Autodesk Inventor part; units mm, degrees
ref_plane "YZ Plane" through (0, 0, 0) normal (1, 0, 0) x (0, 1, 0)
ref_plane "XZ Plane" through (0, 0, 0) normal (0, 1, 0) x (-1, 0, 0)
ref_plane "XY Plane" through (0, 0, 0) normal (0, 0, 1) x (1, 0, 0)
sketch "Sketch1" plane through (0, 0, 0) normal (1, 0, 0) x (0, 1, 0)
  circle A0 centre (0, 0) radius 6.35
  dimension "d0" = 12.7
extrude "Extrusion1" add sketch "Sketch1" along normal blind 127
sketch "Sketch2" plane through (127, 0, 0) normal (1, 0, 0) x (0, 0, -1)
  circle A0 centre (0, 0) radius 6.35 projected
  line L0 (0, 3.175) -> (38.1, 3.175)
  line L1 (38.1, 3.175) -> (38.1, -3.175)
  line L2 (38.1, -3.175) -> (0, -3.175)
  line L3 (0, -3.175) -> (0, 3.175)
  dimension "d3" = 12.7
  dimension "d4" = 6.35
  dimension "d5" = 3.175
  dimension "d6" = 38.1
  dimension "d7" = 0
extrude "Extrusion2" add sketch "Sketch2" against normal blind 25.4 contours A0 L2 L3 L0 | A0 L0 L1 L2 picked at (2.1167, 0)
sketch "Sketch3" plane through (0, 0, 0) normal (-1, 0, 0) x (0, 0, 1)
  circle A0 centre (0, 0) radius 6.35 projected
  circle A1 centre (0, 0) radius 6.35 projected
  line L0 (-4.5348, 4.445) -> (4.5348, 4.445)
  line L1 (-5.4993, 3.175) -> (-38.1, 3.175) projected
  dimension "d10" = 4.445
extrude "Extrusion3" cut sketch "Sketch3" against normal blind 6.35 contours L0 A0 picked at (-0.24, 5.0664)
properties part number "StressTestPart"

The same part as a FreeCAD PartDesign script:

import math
import FreeCAD as App
import Part
import Sketcher

V = App.Vector
Q = App.Units.Quantity

doc = App.newDocument("Part")
body = doc.addObject("PartDesign::Body", "Body")

# Sketch on YZ plane
sketch1 = body.newObject("Sketcher::SketchObject", "Sketch")
sketch1.AttachmentSupport = (doc.getObject("YZ_Plane"), [""])
sketch1.MapMode = "FlatFace"
sketch1.addGeometry(Part.Circle(V(0, 0, 0), V(0, 0, 1), 6), False)
sketch1.addConstraint(Sketcher.Constraint("Coincident", 0, 3, -1, 1))
sketch1.addConstraint(Sketcher.Constraint("Diameter", 0, Q("0.5 in")))
pad1 = body.newObject("PartDesign::Pad", "Pad")
pad1.Profile = sketch1
pad1.Length = Q("5 in")

# Sketch on YZ plane
sketch2 = body.newObject("Sketcher::SketchObject", "Sketch001")
sketch2.AttachmentSupport = (doc.getObject("YZ_Plane"), [""])
sketch2.MapMode = "FlatFace"
sketch2.AttachmentOffset = App.Placement(V(0, 0, 5 * 25.4), App.Rotation())
sketch2.addGeometry(Part.LineSegment(V(-3, 0, 0), V(-3, -38, 0)), False)
sketch2.addGeometry(Part.LineSegment(V(-3, -38, 0), V(3, -38, 0)), False)
sketch2.addGeometry(Part.LineSegment(V(3, -38, 0), V(3, 0, 0)), False)
sketch2.addGeometry(Part.LineSegment(V(3, 0, 0), V(-3, 0, 0)), False)
sketch2.addConstraint(Sketcher.Constraint("Coincident", 0, 2, 1, 1))
sketch2.addConstraint(Sketcher.Constraint("Coincident", 1, 2, 2, 1))
sketch2.addConstraint(Sketcher.Constraint("Coincident", 2, 2, 3, 1))
sketch2.addConstraint(Sketcher.Constraint("Coincident", 3, 2, 0, 1))
sketch2.addConstraint(Sketcher.Constraint("Vertical", 0))
sketch2.addConstraint(Sketcher.Constraint("Horizontal", 1))
sketch2.addConstraint(Sketcher.Constraint("Vertical", 2))
sketch2.addConstraint(Sketcher.Constraint("Horizontal", 3))
sketch2.addConstraint(Sketcher.Constraint("Symmetric", 2, 2, 3, 2, -1, 1))
sketch2.addConstraint(Sketcher.Constraint("DistanceY", 0, 2, 0, 1, Q("1.5 in")))
sketch2.addConstraint(Sketcher.Constraint("DistanceX", 1, 1, 1, 2, Q("0.25 in")))
pad2 = body.newObject("PartDesign::Pad", "Pad001")
pad2.Profile = sketch2
pad2.Length = Q("1 in")
pad2.Reversed = True

# Sketch on YZ plane
sketch3 = body.newObject("Sketcher::SketchObject", "Sketch002")
sketch3.AttachmentSupport = (doc.getObject("YZ_Plane"), [""])
sketch3.MapMode = "FlatFace"
sketch3.addGeometry(Part.LineSegment(V(4, -5, 0), V(4, 5, 0)), False)
sketch3.addGeometry(Part.ArcOfCircle(Part.Circle(V(0, 0, 0), V(0, 0, 1), 6), math.radians(-46), math.radians(46)), False)
sketch3.addConstraint(Sketcher.Constraint("Coincident", 0, 1, 1, 1))
sketch3.addConstraint(Sketcher.Constraint("Coincident", 1, 2, 0, 2))
sketch3.addConstraint(Sketcher.Constraint("Vertical", 0))
sketch3.addConstraint(Sketcher.Constraint("Coincident", 1, 3, -1, 1))
sketch3.addConstraint(Sketcher.Constraint("Radius", 1, Q("0.25 in")))
sketch3.addConstraint(Sketcher.Constraint("DistanceX", -1, 1, 0, 1, Q("0.175 in")))
pocket1 = body.newObject("PartDesign::Pocket", "Pocket")
pocket1.Profile = sketch3
pocket1.Length = Q("0.25 in")
pocket1.Reversed = True

doc.recompute()
